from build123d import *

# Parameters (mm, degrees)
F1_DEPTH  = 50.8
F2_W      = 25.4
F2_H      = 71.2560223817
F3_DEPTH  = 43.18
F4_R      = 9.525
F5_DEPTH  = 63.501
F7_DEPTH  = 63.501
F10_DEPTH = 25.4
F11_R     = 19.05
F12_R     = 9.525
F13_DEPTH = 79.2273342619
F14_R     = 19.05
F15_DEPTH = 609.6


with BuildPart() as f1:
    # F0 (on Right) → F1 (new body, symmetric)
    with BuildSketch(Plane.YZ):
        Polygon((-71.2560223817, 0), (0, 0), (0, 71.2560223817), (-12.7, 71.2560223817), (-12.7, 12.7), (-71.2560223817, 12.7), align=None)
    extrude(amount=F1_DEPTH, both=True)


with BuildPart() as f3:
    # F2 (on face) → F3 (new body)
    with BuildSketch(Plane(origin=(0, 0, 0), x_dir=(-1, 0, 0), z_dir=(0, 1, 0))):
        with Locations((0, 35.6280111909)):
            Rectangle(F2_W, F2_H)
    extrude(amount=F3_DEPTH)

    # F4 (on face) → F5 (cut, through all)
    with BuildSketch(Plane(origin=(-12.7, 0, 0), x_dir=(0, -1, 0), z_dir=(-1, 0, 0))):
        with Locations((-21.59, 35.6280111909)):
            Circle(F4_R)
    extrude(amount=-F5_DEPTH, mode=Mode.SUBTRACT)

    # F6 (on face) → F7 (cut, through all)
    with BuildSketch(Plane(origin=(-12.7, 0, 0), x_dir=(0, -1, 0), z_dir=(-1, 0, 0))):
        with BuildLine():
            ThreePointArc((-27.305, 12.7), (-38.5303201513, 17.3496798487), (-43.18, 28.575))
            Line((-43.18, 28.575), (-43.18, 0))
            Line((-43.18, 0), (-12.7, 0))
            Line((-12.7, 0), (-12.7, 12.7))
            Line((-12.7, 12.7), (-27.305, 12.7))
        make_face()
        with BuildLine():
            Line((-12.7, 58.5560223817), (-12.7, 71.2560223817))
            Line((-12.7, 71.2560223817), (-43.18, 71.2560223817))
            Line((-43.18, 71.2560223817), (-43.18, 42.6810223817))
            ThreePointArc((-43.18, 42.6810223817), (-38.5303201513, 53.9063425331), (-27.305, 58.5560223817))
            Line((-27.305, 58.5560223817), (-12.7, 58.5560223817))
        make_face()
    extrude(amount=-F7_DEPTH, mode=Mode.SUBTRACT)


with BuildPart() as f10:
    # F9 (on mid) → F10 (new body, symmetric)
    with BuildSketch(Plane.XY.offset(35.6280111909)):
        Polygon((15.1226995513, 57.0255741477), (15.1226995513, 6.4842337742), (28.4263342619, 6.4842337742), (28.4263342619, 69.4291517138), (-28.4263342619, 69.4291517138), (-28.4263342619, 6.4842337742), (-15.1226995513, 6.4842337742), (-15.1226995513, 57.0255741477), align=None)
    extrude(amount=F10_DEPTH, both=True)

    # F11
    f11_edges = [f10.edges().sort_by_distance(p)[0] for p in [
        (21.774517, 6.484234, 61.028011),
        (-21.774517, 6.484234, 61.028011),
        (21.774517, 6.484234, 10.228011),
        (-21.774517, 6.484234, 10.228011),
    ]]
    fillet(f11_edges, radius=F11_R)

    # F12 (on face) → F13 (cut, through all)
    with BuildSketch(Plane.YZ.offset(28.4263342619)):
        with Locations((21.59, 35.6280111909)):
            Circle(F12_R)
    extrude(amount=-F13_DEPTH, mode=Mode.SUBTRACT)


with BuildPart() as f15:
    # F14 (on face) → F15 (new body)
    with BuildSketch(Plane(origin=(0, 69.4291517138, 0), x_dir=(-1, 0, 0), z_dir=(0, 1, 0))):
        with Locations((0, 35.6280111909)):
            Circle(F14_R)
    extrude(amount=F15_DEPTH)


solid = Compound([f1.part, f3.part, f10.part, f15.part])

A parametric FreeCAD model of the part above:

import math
import FreeCAD as App
import Part
import Sketcher
from FreeCAD import Vector
Q = App.Units.Quantity


def edges_at(feature, points):
    """Names of the edges that pass closest to the given points."""
    edges = feature.Shape.Edges
    near = lambda p: min(range(len(edges)), key=lambda i: edges[i].distToShape(Part.Vertex(*p))[0])
    return sorted({f"Edge{near(p) + 1}" for p in points})


def add_polygon(sketch, points):
    """Adds a closed chain of lines whose ends are joined by coincident constraints."""
    first, n = sketch.GeometryCount, len(points)
    for a, b in zip(points, points[1:] + points[:1]):
        sketch.addGeometry(Part.LineSegment(App.Vector(*a, 0), App.Vector(*b, 0)), False)
    for i in range(n):
        sketch.addConstraint(Sketcher.Constraint("Coincident", first + i, 2, first + (i + 1) % n, 1))

doc = App.newDocument("Part")
body = doc.addObject("PartDesign::Body", "Body")

sketch1 = body.newObject("Sketcher::SketchObject", "Sketch")
sketch1.AttachmentSupport = (doc.getObject("YZ_Plane"), [""])
sketch1.MapMode = "FlatFace"
add_polygon(sketch1, [(-71, 0), (0, 0), (0, 71), (-13, 71), (-13, 13), (-71, 13)])
sketch1.addConstraint([
    Sketcher.Constraint("Horizontal", 0),
    Sketcher.Constraint("Vertical", 1),
    Sketcher.Constraint("Horizontal", 2),
    Sketcher.Constraint("Vertical", 3),
    Sketcher.Constraint("Horizontal", 4),
    Sketcher.Constraint("Vertical", 5),
    Sketcher.Constraint("Coincident", 0, 2, -1, 1),
    Sketcher.Constraint("Equal", 0, 1),
    Sketcher.Constraint("Equal", 4, 3),
    Sketcher.Constraint("DistanceX", 2, 2, 2, 1, Q("0.5 in")),
    Sketcher.Constraint("DistanceX", 0, 1, 0, 2, Q("71.256022 mm")),
])
pad1 = body.newObject("PartDesign::Pad", "Pad")
pad1.Profile = sketch1
pad1.Length = Q("4 in")
pad1.Midplane = True
body2 = doc.addObject("PartDesign::Body", "Body001")

sketch2 = body2.newObject("Sketcher::SketchObject", "Sketch001")
sketch2.AttachmentSupport = (doc.getObject("XZ_Plane001"), [""])
sketch2.MapMode = "FlatFace"
add_polygon(sketch2, [(13, 71), (13, 0), (-13, 0), (-13, 71)])
sketch2.addConstraint([
    Sketcher.Constraint("Vertical", 0),
    Sketcher.Constraint("Horizontal", 1),
    Sketcher.Constraint("Vertical", 2),
    Sketcher.Constraint("Horizontal", 3),
    Sketcher.Constraint("Symmetric", 0, 2, 1, 2, -1, 1),
    Sketcher.Constraint("DistanceX", 1, 2, 1, 1, Q("1 in")),
    Sketcher.Constraint("DistanceY", 0, 2, 0, 1, Q("71.256022 mm")),
])
pad2 = body2.newObject("PartDesign::Pad", "Pad001")
pad2.Profile = sketch2
pad2.Length = Q("1.7 in")
pad2.Reversed = True

sketch3 = body2.newObject("Sketcher::SketchObject", "Sketch002")
sketch3.AttachmentSupport = (doc.getObject("YZ_Plane001"), [""])
sketch3.MapMode = "FlatFace"
sketch3.AttachmentOffset = App.Placement(Vector(0, 0, -0.5 * 25.4), App.Rotation())
sketch3.addGeometry(Part.Circle(Vector(22, 36, 0), Vector(0, 0, 1), 10), False)
sketch3.addConstraint([
    Sketcher.Constraint("Diameter", 0, Q("0.75 in")),
    Sketcher.Constraint("DistanceX", -1, 1, 0, 3, Q("0.85 in")),
    Sketcher.Constraint("DistanceY", -1, 1, 0, 3, Q("35.628011 mm")),
])
pocket1 = body2.newObject("PartDesign::Pocket", "Pocket")
pocket1.Profile = sketch3
pocket1.Type = "ThroughAll"
pocket1.Reversed = True

sketch4 = body2.newObject("Sketcher::SketchObject", "Sketch003")
sketch4.AttachmentSupport = (doc.getObject("YZ_Plane001"), [""])
sketch4.MapMode = "FlatFace"
sketch4.AttachmentOffset = App.Placement(Vector(0, 0, -0.5 * 25.4), App.Rotation())
sketch4.addGeometry([
    Part.ArcOfCircle(Part.Circle(Vector(27, 29, 0), Vector(0, 0, 1), 16), math.radians(-90), math.radians(0)),
    Part.LineSegment(Vector(43, 29, 0), Vector(43, 0, 0)),
    Part.LineSegment(Vector(43, 0, 0), Vector(13, 0, 0)),
    Part.LineSegment(Vector(13, 0, 0), Vector(13, 13, 0)),
    Part.LineSegment(Vector(13, 13, 0), Vector(27, 13, 0)),
    Part.LineSegment(Vector(13, 59, 0), Vector(13, 71, 0)),
    Part.LineSegment(Vector(13, 71, 0), Vector(43, 71, 0)),
    Part.LineSegment(Vector(43, 71, 0), Vector(43, 43, 0)),
    Part.ArcOfCircle(Part.Circle(Vector(27, 43, 0), Vector(0, 0, 1), 16), math.radians(0), math.radians(90)),
    Part.LineSegment(Vector(27, 59, 0), Vector(13, 59, 0)),
], False)
sketch4.addConstraint([
    Sketcher.Constraint("Tangent", 0, 2, 1, 1),
    Sketcher.Constraint("Coincident", 1, 2, 2, 1),
    Sketcher.Constraint("Coincident", 2, 2, 3, 1),
    Sketcher.Constraint("Coincident", 3, 2, 4, 1),
    Sketcher.Constraint("Tangent", 4, 2, 0, 1),
    Sketcher.Constraint("Coincident", 5, 2, 6, 1),
    Sketcher.Constraint("Coincident", 6, 2, 7, 1),
    Sketcher.Constraint("Tangent", 7, 2, 8, 1),
    Sketcher.Constraint("Tangent", 8, 2, 9, 1),
    Sketcher.Constraint("Coincident", 9, 2, 5, 1),
    Sketcher.Constraint("Vertical", 1),
    Sketcher.Constraint("Horizontal", 2),
    Sketcher.Constraint("Vertical", 3),
    Sketcher.Constraint("Horizontal", 4),
    Sketcher.Constraint("Vertical", 5),
    Sketcher.Constraint("Horizontal", 6),
    Sketcher.Constraint("Vertical", 7),
    Sketcher.Constraint("Horizontal", 9),
    Sketcher.Constraint("Equal", 0, 8),
    Sketcher.Constraint("PointOnObject", 1, 2, -1),
    Sketcher.Constraint("Vertical", 0, 3, 8, 3),
    Sketcher.Constraint("Vertical", 3, 2, 5, 2),
    Sketcher.Constraint("Equal", 3, 5),
    Sketcher.Constraint("DistanceX", 2, 2, 2, 1, Q("1.2 in")),
    Sketcher.Constraint("DistanceY", 3, 1, 3, 2, Q("0.5 in")),
    Sketcher.Constraint("Radius", 0, Q("0.625 in")),
    Sketcher.Constraint("DistanceX", -1, 1, 0, 2, Q("1.7 in")),
    Sketcher.Constraint("DistanceY", -1, 1, 8, 3, Q("42.681022 mm")),
])
pocket2 = body2.newObject("PartDesign::Pocket", "Pocket001")
pocket2.Profile = sketch4
pocket2.Type = "ThroughAll"
pocket2.Reversed = True
body3 = doc.addObject("PartDesign::Body", "Body002")

sketch5 = body3.newObject("Sketcher::SketchObject", "Sketch004")
sketch5.AttachmentSupport = (doc.getObject("XY_Plane002"), [""])
sketch5.MapMode = "FlatFace"
sketch5.AttachmentOffset = App.Placement(Vector(0, 0, 35.628011), App.Rotation())
add_polygon(sketch5, [(15, 57), (15, 6), (28, 6), (28, 69), (-28, 69), (-28, 6), (-15, 6), (-15, 57)])
sketch5.addConstraint([
    Sketcher.Constraint("Vertical", 0),
    Sketcher.Constraint("Horizontal", 1),
    Sketcher.Constraint("Vertical", 2),
    Sketcher.Constraint("Horizontal", 3),
    Sketcher.Constraint("Vertical", 4),
    Sketcher.Constraint("Horizontal", 5),
    Sketcher.Constraint("Vertical", 6),
    Sketcher.Constraint("Horizontal", 7),
    Sketcher.Constraint("Symmetric", 1, 2, 4, 2, -2),
    Sketcher.Constraint("Equal", 1, 5),
    Sketcher.Constraint("DistanceX", 7, 1, 7, 2, Q("30.245399 mm")),
    Sketcher.Constraint("DistanceX", 3, 2, 3, 1, Q("56.852669 mm")),
    Sketcher.Constraint("DistanceY", 0, 2, 0, 1, Q("50.54134 mm")),
    Sketcher.Constraint("DistanceY", 2, 1, 2, 2, Q("62.944918 mm")),
    Sketcher.Constraint("DistanceY", -1, 1, 2, 2, Q("69.429152 mm")),
])
pad3 = body3.newObject("PartDesign::Pad", "Pad002")
pad3.Profile = sketch5
pad3.Length = Q("2 in")
pad3.Midplane = True
doc.recompute()

fillet = body3.newObject("PartDesign::Fillet", "Fillet")
fillet.Base = (pad3, edges_at(pad3, [
    (21.775, 6.484, 61.028),
    (-21.775, 6.484, 61.028),
    (21.775, 6.484, 10.228),
    (-21.775, 6.484, 10.228),
]))
fillet.Radius = Q("0.75 in")

sketch6 = body3.newObject("Sketcher::SketchObject", "Sketch005")
sketch6.AttachmentSupport = (doc.getObject("YZ_Plane002"), [""])
sketch6.MapMode = "FlatFace"
sketch6.AttachmentOffset = App.Placement(Vector(0, 0, 28.426334), App.Rotation())
sketch6.addGeometry(Part.Circle(Vector(22, 36, 0), Vector(0, 0, 1), 10), False)
sketch6.addConstraint([
    Sketcher.Constraint("Diameter", 0, Q("0.75 in")),
    Sketcher.Constraint("DistanceX", -1, 1, 0, 3, Q("0.85 in")),
    Sketcher.Constraint("DistanceY", -1, 1, 0, 3, Q("35.628011 mm")),
])
pocket3 = body3.newObject("PartDesign::Pocket", "Pocket002")
pocket3.Profile = sketch6
pocket3.Type = "ThroughAll"
body4 = doc.addObject("PartDesign::Body", "Body003")

sketch7 = body4.newObject("Sketcher::SketchObject", "Sketch006")
sketch7.AttachmentSupport = (doc.getObject("XZ_Plane003"), [""])
sketch7.MapMode = "FlatFace"
sketch7.AttachmentOffset = App.Placement(Vector(0, 0, -69.429152), App.Rotation())
sketch7.addGeometry(Part.Circle(Vector(0, 36, 0), Vector(0, 0, 1), 19), False)
sketch7.addConstraint([
    Sketcher.Constraint("PointOnObject", 0, 3, -2),
    Sketcher.Constraint("Diameter", 0, Q("1.5 in")),
    Sketcher.Constraint("DistanceY", -1, 1, 0, 3, Q("35.628011 mm")),
])
pad4 = body4.newObject("PartDesign::Pad", "Pad003")
pad4.Profile = sketch7
pad4.Length = Q("24 in")
pad4.Reversed = True

doc.recompute()
